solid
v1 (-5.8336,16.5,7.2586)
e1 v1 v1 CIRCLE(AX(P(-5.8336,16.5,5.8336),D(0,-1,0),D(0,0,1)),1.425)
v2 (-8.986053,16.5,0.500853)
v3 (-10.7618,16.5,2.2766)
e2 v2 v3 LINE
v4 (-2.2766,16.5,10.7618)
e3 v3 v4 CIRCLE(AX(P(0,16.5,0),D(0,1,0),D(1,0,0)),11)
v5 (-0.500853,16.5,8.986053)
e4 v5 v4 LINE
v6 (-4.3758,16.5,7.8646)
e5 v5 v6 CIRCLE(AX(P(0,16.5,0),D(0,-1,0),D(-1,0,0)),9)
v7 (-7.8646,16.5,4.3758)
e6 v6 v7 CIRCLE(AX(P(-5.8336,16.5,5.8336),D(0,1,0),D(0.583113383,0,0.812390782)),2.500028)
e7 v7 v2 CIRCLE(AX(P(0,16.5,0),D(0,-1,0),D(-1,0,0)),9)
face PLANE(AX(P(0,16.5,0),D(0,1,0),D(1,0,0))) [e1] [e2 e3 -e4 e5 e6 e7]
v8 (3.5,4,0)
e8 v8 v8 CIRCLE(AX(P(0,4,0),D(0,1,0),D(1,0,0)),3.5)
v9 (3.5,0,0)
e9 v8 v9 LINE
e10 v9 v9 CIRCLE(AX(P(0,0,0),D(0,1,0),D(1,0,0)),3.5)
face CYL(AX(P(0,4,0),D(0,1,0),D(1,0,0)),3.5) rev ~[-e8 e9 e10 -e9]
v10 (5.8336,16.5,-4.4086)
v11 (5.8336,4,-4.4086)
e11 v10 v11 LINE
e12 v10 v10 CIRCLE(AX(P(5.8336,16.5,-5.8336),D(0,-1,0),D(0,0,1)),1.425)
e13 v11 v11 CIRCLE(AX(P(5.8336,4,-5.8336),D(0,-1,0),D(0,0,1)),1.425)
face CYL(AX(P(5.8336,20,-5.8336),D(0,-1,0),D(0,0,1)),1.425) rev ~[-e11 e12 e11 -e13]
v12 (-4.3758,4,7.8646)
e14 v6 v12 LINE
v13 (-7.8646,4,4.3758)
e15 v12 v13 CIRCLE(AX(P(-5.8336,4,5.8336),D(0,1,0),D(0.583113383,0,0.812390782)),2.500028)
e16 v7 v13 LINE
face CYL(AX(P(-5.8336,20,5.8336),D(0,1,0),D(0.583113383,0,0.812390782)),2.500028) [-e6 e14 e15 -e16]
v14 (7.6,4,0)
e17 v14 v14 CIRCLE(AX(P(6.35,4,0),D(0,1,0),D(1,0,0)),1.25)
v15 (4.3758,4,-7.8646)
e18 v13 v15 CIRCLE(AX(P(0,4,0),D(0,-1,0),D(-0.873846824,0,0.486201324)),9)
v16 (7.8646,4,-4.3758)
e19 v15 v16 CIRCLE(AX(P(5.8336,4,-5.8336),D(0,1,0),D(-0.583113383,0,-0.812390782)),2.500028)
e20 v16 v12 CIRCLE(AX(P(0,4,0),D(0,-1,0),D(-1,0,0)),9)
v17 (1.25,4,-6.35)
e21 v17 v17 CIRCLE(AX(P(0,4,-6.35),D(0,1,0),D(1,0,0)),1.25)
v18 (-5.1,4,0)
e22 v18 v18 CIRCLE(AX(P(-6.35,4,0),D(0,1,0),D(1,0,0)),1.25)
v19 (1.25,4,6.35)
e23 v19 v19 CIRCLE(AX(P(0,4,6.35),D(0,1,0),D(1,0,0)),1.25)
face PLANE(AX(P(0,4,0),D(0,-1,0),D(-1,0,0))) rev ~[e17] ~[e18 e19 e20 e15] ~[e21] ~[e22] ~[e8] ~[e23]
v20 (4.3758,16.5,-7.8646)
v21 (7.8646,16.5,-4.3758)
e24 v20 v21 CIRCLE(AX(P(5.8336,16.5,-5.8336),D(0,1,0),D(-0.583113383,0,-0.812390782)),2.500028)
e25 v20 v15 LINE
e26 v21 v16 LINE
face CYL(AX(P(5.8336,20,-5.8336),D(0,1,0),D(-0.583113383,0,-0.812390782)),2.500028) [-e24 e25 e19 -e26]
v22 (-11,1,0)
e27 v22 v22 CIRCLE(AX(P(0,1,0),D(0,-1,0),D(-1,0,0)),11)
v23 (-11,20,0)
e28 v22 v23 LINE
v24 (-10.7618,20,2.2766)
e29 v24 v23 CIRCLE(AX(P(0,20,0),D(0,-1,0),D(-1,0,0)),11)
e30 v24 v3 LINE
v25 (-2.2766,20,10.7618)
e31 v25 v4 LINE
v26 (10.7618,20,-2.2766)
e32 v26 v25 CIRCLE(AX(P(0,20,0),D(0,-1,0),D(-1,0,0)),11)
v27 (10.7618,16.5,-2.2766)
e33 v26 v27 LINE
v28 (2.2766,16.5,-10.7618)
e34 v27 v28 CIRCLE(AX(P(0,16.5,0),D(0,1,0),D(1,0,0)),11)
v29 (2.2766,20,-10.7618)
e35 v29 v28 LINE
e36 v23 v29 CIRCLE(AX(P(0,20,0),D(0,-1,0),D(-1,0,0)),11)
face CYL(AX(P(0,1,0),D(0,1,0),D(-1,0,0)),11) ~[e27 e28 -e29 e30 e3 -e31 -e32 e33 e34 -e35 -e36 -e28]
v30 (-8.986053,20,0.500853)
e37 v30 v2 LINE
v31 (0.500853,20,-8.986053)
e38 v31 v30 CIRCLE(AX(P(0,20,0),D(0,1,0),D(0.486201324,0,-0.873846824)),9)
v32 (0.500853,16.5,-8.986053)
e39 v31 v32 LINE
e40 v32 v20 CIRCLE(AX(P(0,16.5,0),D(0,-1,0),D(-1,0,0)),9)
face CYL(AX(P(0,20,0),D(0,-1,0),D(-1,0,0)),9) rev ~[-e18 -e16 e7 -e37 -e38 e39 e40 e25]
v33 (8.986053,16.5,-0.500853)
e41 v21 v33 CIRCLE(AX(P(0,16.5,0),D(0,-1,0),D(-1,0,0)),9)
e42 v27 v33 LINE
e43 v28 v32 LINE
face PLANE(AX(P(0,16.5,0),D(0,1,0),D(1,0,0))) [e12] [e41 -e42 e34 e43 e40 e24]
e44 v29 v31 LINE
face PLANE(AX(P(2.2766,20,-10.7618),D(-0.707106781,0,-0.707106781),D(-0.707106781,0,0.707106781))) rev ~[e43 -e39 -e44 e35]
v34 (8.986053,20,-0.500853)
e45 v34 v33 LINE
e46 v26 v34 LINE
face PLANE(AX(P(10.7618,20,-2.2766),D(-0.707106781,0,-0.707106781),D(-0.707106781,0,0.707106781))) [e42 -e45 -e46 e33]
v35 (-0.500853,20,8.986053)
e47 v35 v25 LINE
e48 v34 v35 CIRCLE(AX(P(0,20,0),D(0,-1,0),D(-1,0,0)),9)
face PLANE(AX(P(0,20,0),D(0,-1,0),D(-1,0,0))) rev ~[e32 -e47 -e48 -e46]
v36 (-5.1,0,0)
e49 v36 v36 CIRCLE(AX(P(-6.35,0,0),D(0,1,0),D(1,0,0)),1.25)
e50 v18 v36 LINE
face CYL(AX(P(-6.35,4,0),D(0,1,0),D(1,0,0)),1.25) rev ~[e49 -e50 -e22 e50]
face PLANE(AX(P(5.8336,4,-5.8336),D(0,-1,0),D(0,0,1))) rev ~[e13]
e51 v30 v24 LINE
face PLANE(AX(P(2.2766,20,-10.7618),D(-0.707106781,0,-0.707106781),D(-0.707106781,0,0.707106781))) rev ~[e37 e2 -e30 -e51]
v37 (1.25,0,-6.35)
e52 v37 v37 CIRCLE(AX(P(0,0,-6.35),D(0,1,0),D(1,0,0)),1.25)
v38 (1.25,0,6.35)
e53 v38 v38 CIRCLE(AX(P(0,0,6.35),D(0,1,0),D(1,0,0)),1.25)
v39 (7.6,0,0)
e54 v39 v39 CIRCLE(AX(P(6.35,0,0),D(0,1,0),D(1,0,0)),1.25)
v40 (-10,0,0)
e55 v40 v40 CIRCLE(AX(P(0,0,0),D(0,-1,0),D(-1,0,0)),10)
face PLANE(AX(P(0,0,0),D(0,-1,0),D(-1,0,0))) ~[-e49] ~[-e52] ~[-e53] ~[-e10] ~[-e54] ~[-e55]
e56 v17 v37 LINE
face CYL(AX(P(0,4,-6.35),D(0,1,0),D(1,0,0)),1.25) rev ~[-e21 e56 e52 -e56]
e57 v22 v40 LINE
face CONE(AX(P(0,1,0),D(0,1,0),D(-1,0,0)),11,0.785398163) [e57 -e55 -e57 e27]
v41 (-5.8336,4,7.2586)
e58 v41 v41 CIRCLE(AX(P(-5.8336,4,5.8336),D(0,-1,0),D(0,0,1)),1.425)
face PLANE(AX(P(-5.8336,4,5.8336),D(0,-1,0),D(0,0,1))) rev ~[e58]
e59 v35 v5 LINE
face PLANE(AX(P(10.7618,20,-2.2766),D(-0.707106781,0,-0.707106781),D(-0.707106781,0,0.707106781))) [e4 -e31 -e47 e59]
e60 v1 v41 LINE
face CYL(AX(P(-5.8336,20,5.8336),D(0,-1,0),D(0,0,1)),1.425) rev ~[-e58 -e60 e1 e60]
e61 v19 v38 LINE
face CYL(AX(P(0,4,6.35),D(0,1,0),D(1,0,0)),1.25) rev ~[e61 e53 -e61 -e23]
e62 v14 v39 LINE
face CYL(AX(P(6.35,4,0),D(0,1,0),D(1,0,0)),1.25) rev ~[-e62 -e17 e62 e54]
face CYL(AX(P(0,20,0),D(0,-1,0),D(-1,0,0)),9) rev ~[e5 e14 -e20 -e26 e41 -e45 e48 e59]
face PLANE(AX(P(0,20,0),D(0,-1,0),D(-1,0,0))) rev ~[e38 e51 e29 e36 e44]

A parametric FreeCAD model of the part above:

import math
import FreeCAD as App
import Part
import Sketcher
Q = App.Units.Quantity

doc = App.newDocument("Part")
body = doc.addObject("PartDesign::Body", "Body")

sketch1 = body.newObject("Sketcher::SketchObject", "Sketch")
sketch1.AttachmentSupport = (doc.getObject("XY_Plane"), [""])
sketch1.MapMode = "FlatFace"
sketch1.addGeometry(Part.LineSegment(App.Vector(-9, 4, 0), App.Vector(-9, 20, 0)), False)
sketch1.addGeometry(Part.LineSegment(App.Vector(-9, 20, 0), App.Vector(-11, 20, 0)), False)
sketch1.addGeometry(Part.LineSegment(App.Vector(-11, 20, 0), App.Vector(-11, 1, 0)), False)
sketch1.addGeometry(Part.LineSegment(App.Vector(-11, 1, 0), App.Vector(-10, 0, 0)), False)
sketch1.addGeometry(Part.LineSegment(App.Vector(-10, 0, 0), App.Vector(0, 0, 0)), False)
sketch1.addGeometry(Part.LineSegment(App.Vector(0, 0, 0), App.Vector(0, 4, 0)), False)
sketch1.addGeometry(Part.LineSegment(App.Vector(0, 4, 0), App.Vector(-9, 4, 0)), False)
sketch1.addConstraint(Sketcher.Constraint("Coincident", 0, 2, 1, 1))
sketch1.addConstraint(Sketcher.Constraint("Coincident", 1, 2, 2, 1))
sketch1.addConstraint(Sketcher.Constraint("Coincident", 2, 2, 3, 1))
sketch1.addConstraint(Sketcher.Constraint("Coincident", 3, 2, 4, 1))
sketch1.addConstraint(Sketcher.Constraint("Coincident", 4, 2, 5, 1))
sketch1.addConstraint(Sketcher.Constraint("Coincident", 5, 2, 6, 1))
sketch1.addConstraint(Sketcher.Constraint("Coincident", 6, 2, 0, 1))
sketch1.addConstraint(Sketcher.Constraint("Vertical", 0))
sketch1.addConstraint(Sketcher.Constraint("Horizontal", 1))
sketch1.addConstraint(Sketcher.Constraint("Vertical", 2))
sketch1.addConstraint(Sketcher.Constraint("Horizontal", 4))
sketch1.addConstraint(Sketcher.Constraint("Vertical", 5))
sketch1.addConstraint(Sketcher.Constraint("Horizontal", 6))
sketch1.addConstraint(Sketcher.Constraint("Coincident", 4, 2, -1, 1))
sketch1.addConstraint(Sketcher.Constraint("DistanceX", 1, 2, 1, 1, 2.0))
sketch1.addConstraint(Sketcher.Constraint("DistanceY", 5, 1, 5, 2, 4.0))
sketch1.addConstraint(Sketcher.Constraint("Angle", 3, Q("-45 deg")))
sketch1.addConstraint(Sketcher.Constraint("DistanceY", -1, 1, 0, 2, 20.0))
sketch1.addConstraint(Sketcher.Constraint("DistanceY", -1, 1, 2, 2, 1.0))
sketch1.addConstraint(Sketcher.Constraint("DistanceX", 4, 1, 4, 2, 10.0))
revolution = body.newObject("PartDesign::Revolution", "Revolution")
revolution.Profile = sketch1
revolution.ReferenceAxis = (sketch1, ["V_Axis"])
revolution.Angle = 360

sketch2 = body.newObject("Sketcher::SketchObject", "Sketch001")
sketch2.AttachmentSupport = (doc.getObject("XZ_Plane"), [""])
sketch2.MapMode = "FlatFace"
sketch2.AttachmentOffset = App.Placement(App.Vector(0, 0, -4), App.Rotation())
sketch2.addGeometry(Part.Circle(App.Vector(0, 0, 0), App.Vector(0, 0, 1), 3.5), False)
sketch2.addGeometry(Part.Circle(App.Vector(0, -6.3, 0), App.Vector(0, 0, 1), 1.2), False)
sketch2.addGeometry(Part.Circle(App.Vector(0, 6.3, 0), App.Vector(0, 0, 1), 1.2), False)
sketch2.addGeometry(Part.Circle(App.Vector(-6.3, 0, 0), App.Vector(0, 0, 1), 1.2), False)
sketch2.addGeometry(Part.Circle(App.Vector(6.3, 0, 0), App.Vector(0, 0, 1), 1.2), False)
sketch2.addConstraint(Sketcher.Constraint("Coincident", 0, 3, -1, 1))
sketch2.addConstraint(Sketcher.Constraint("Equal", 1, 2))
sketch2.addConstraint(Sketcher.Constraint("Equal", 2, 3))
sketch2.addConstraint(Sketcher.Constraint("Equal", 3, 4))
sketch2.addConstraint(Sketcher.Constraint("Symmetric", 1, 3, 2, 3, -1, 1))
sketch2.addConstraint(Sketcher.Constraint("Symmetric", 3, 3, 4, 3, -1, 1))
sketch2.addConstraint(Sketcher.Constraint("PointOnObject", 1, 3, -2))
sketch2.addConstraint(Sketcher.Constraint("PointOnObject", 3, 3, -1))
sketch2.addConstraint(Sketcher.Constraint("Diameter", 0, 7.0))
sketch2.addConstraint(Sketcher.Constraint("Diameter", 1, 2.5))
sketch2.addConstraint(Sketcher.Constraint("DistanceY", 1, 3, 2, 3, 12.7))
sketch2.addConstraint(Sketcher.Constraint("DistanceX", 3, 3, 4, 3, 12.7))
pocket1 = body.newObject("PartDesign::Pocket", "Pocket")
pocket1.Profile = sketch2
pocket1.Type = "ThroughAll"
pocket1.Reversed = True

sketch3 = body.newObject("Sketcher::SketchObject", "Sketch002")
sketch3.AttachmentSupport = (doc.getObject("XZ_Plane"), [""])
sketch3.MapMode = "FlatFace"
sketch3.AttachmentOffset = App.Placement(App.Vector(0, 0, -20), App.Rotation())
sketch3.addGeometry(Part.ArcOfCircle(Part.Circle(App.Vector(5.8, -5.8, 0), App.Vector(0, 0, 1), 2.5), math.radians(36), math.radians(234)), False)
sketch3.addGeometry(Part.ArcOfCircle(Part.Circle(App.Vector(0, 0, 0), App.Vector(0, 0, 1), 9), math.radians(-61), math.radians(-29)), False)
sketch3.addGeometry(Part.ArcOfCircle(Part.Circle(App.Vector(0, 0, 0), App.Vector(0, 0, 1), 9), math.radians(119), math.radians(151)), False)
sketch3.addGeometry(Part.ArcOfCircle(Part.Circle(App.Vector(-5.8, 5.8, 0), App.Vector(0, 0, 1), 2.5), math.radians(-144), math.radians(54)), False)
sketch3.addConstraint(Sketcher.Constraint("Coincident", 0, 1, 1, 2))
sketch3.addConstraint(Sketcher.Constraint("Coincident", 1, 1, 0, 2))
sketch3.addConstraint(Sketcher.Constraint("Coincident", 2, 1, 3, 2))
sketch3.addConstraint(Sketcher.Constraint("Coincident", 3, 1, 2, 2))
sketch3.addConstraint(Sketcher.Constraint("Coincident", 1, 3, -1, 1))
sketch3.addConstraint(Sketcher.Constraint("Coincident", 2, 3, -1, 1))
sketch3.addConstraint(Sketcher.Constraint("Equal", 1, 2))
sketch3.addConstraint(Sketcher.Constraint("Equal", 0, 3))
sketch3.addConstraint(Sketcher.Constraint("Symmetric", 0, 3, 3, 3, -1, 1))
sketch3.addConstraint(Sketcher.Constraint("Radius", 0, 2.5))
sketch3.addConstraint(Sketcher.Constraint("Radius", 1, 9.0))
sketch3.addConstraint(Sketcher.Constraint("DistanceX", 0, 3, 0, 1, 2.031))
sketch3.addConstraint(Sketcher.Constraint("DistanceY", 1, 1, 0, 3, 2.031))
pad1 = body.newObject("PartDesign::Pad", "Pad")
pad1.Profile = sketch3
pad1.Length = 16

sketch4 = body.newObject("Sketcher::SketchObject", "Sketch003")
sketch4.AttachmentSupport = (doc.getObject("XZ_Plane"), [""])
sketch4.MapMode = "FlatFace"
sketch4.AttachmentOffset = App.Placement(App.Vector(0, 0, -20), App.Rotation())
sketch4.addGeometry(Part.Circle(App.Vector(-5.8, 5.8, 0), App.Vector(0, 0, 1), 1.4), False)
sketch4.addGeometry(Part.Circle(App.Vector(5.8, -5.8, 0), App.Vector(0, 0, 1), 1.4), False)
sketch4.addConstraint(Sketcher.Constraint("Equal", 0, 1))
sketch4.addConstraint(Sketcher.Constraint("Symmetric", 0, 3, 1, 3, -1, 1))
sketch4.addConstraint(Sketcher.Constraint("Diameter", 0, 2.85))
sketch4.addConstraint(Sketcher.Constraint("DistanceX", 0, 3, -1, 1, 5.8336))
sketch4.addConstraint(Sketcher.Constraint("DistanceY", -1, 1, 0, 3, 5.8336))
doc.recompute()
hole = body.newObject("PartDesign::Hole", "Hole")
hole.Profile = sketch4
hole.ThreadType = "None"
hole.Diameter = 2.85
hole.DepthType = "Dimension"
hole.Depth = 16
hole.DrillPoint = "Flat"
hole.Reversed = True

sketch5 = body.newObject("Sketcher::SketchObject", "Sketch004")
sketch5.AttachmentSupport = (doc.getObject("XZ_Plane"), [""])
sketch5.MapMode = "FlatFace"
sketch5.AttachmentOffset = App.Placement(App.Vector(0, 0, -20), App.Rotation())
sketch5.addGeometry(Part.LineSegment(App.Vector(-2, 11, 0), App.Vector(11, -2, 0)), False)
sketch5.addGeometry(Part.ArcOfCircle(Part.Circle(App.Vector(0, 0, 0), App.Vector(0, 0, 1), 11), math.radians(-78), math.radians(-12)), False)
sketch5.addGeometry(Part.LineSegment(App.Vector(2, -11, 0), App.Vector(-11, 2, 0)), False)
sketch5.addGeometry(Part.ArcOfCircle(Part.Circle(App.Vector(0, 0, 0), App.Vector(0, 0, 1), 11), math.radians(102), math.radians(168)), False)
sketch5.addConstraint(Sketcher.Constraint("Coincident", 0, 2, 1, 2))
sketch5.addConstraint(Sketcher.Constraint("Coincident", 1, 1, 2, 1))
sketch5.addConstraint(Sketcher.Constraint("Coincident", 2, 2, 3, 2))
sketch5.addConstraint(Sketcher.Constraint("Coincident", 3, 1, 0, 1))
sketch5.addConstraint(Sketcher.Constraint("Coincident", 1, 3, -1, 1))
sketch5.addConstraint(Sketcher.Constraint("Coincident", 3, 3, -1, 1))
sketch5.addConstraint(Sketcher.Constraint("Equal", 1, 3))
sketch5.addConstraint(Sketcher.Constraint("Parallel", 0, 2))
sketch5.addConstraint(Sketcher.Constraint("Equal", 0, 2))
sketch5.addConstraint(Sketcher.Constraint("Radius", 1, 11.0))
sketch5.addConstraint(Sketcher.Constraint("Angle", 0, Q("-45 deg")))
sketch5.addConstraint(Sketcher.Constraint("Distance", 0, 18.439))
pocket2 = body.newObject("PartDesign::Pocket", "Pocket001")
pocket2.Profile = sketch5
pocket2.Length = 3.5
pocket2.Reversed = True

doc.recompute()
